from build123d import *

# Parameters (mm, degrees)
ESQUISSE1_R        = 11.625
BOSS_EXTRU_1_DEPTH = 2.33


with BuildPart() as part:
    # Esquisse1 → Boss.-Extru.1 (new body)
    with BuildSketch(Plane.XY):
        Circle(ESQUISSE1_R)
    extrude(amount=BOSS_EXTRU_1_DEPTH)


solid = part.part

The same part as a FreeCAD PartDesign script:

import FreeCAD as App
import Part
import Sketcher
Q = App.Units.Quantity

doc = App.newDocument("Part")
body = doc.addObject("PartDesign::Body", "Body")

# Sketch on XY plane
sketch1 = body.newObject("Sketcher::SketchObject", "Sketch")
sketch1.AttachmentSupport = (doc.getObject("XY_Plane"), [""])
sketch1.MapMode = "FlatFace"
sketch1.addGeometry(Part.Circle(App.Vector(0, 0, 0), App.Vector(0, 0, 1), 11.625), False)
sketch1.addConstraint([
    Sketcher.Constraint("Coincident", 0, 3, -1, 1),
    Sketcher.Constraint("Diameter", 0, Q("23.25 mm")),
])
pad1 = body.newObject("PartDesign::Pad", "Pad")
pad1.Profile = sketch1
pad1.Length = 2.33

doc.recompute()
